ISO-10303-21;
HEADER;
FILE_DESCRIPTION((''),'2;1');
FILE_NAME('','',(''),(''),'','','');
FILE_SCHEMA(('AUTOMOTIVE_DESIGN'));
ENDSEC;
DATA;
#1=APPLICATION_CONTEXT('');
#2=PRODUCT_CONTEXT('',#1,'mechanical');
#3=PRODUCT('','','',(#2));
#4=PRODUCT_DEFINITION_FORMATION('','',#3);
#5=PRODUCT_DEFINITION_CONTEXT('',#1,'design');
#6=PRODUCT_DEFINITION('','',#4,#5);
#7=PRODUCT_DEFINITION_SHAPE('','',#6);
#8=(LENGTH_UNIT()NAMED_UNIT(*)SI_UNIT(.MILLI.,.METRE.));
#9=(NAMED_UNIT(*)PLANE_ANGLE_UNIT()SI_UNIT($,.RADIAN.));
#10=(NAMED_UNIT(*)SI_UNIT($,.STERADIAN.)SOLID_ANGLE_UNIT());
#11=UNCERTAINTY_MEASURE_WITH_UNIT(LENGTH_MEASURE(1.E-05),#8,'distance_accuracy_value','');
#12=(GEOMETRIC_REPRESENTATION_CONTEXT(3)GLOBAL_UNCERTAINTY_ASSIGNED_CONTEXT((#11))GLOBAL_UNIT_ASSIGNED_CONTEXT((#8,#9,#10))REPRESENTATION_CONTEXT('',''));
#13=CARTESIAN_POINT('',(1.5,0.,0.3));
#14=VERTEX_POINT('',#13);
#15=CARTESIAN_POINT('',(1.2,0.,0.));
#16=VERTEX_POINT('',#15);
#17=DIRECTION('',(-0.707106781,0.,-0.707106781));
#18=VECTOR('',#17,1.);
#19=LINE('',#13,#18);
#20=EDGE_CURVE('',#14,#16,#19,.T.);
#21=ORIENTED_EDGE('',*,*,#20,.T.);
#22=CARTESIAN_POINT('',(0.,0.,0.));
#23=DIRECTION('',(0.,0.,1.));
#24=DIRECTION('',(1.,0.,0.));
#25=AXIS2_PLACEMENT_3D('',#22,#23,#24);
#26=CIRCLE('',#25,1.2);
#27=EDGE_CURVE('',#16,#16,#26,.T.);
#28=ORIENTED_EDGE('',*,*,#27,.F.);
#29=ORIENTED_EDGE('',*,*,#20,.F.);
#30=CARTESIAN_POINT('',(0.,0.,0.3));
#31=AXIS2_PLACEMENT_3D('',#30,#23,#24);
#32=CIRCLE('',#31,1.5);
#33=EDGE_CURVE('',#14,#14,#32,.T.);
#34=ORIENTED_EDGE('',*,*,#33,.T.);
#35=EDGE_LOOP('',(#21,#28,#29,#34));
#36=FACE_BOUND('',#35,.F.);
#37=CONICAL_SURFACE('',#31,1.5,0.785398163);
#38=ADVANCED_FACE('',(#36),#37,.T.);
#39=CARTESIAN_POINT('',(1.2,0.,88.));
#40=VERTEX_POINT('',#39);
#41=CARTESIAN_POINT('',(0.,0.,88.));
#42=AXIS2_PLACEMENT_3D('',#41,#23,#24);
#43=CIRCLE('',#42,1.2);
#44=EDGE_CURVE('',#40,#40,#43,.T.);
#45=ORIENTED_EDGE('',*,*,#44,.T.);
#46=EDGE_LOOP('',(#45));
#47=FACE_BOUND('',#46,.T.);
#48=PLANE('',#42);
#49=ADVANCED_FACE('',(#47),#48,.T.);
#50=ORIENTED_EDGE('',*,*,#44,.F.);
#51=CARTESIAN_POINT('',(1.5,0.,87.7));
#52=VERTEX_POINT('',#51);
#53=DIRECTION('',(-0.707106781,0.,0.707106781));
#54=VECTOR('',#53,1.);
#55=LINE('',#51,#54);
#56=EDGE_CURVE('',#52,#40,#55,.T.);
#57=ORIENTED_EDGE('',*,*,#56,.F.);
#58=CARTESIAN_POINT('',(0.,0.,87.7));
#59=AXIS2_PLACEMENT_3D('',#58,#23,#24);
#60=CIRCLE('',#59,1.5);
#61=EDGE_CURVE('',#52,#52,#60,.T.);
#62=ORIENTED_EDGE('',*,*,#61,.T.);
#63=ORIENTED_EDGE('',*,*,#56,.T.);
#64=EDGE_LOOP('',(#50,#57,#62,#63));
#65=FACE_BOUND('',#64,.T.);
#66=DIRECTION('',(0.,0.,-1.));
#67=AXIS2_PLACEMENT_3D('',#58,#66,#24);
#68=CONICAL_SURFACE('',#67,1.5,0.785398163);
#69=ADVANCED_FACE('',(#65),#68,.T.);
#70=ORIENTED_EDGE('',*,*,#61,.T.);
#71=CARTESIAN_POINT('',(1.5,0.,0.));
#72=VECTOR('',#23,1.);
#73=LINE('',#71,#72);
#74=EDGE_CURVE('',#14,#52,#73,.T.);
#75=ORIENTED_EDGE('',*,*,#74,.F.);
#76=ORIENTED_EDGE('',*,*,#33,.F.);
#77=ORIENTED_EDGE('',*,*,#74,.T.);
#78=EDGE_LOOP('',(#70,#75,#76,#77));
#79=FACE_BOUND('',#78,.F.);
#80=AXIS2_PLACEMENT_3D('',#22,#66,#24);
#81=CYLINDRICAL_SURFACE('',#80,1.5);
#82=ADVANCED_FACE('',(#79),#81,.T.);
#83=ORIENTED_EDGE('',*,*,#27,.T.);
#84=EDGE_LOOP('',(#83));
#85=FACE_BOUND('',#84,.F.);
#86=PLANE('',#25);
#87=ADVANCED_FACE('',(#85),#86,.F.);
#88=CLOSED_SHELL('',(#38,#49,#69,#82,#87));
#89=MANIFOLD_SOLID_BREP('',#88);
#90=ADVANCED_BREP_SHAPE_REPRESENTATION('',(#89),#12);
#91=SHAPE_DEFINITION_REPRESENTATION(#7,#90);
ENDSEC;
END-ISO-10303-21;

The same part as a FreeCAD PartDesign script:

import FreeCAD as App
import Part
import Sketcher
from FreeCAD import Vector


def edges_at(feature, points):
    """Names of the edges that pass closest to the given points."""
    edges = feature.Shape.Edges
    near = lambda p: min(range(len(edges)), key=lambda i: edges[i].distToShape(Part.Vertex(*p))[0])
    return sorted({f"Edge{near(p) + 1}" for p in points})

doc = App.newDocument("Part")
body = doc.addObject("PartDesign::Body", "Body")

# Sketch on XY plane
sketch1 = body.newObject("Sketcher::SketchObject", "Sketch")
sketch1.AttachmentSupport = (doc.getObject("XY_Plane"), [""])
sketch1.MapMode = "FlatFace"
sketch1.addGeometry(Part.Circle(Vector(0, 0, 0), Vector(0, 0, 1), 1.5), False)
sketch1.addConstraint(Sketcher.Constraint("Coincident", 0, 3, -1, 1))
sketch1.addConstraint(Sketcher.Constraint("Diameter", 0, 3.0))
pad1 = body.newObject("PartDesign::Pad", "Pad")
pad1.Profile = sketch1
pad1.Length = 88
doc.recompute()

chamfer = body.newObject("PartDesign::Chamfer", "Chamfer")
chamfer.Base = (pad1, edges_at(pad1, [(-1.5, 0, 88), (-1.5, 0, 0)]))
chamfer.Size = 0.3

doc.recompute()
